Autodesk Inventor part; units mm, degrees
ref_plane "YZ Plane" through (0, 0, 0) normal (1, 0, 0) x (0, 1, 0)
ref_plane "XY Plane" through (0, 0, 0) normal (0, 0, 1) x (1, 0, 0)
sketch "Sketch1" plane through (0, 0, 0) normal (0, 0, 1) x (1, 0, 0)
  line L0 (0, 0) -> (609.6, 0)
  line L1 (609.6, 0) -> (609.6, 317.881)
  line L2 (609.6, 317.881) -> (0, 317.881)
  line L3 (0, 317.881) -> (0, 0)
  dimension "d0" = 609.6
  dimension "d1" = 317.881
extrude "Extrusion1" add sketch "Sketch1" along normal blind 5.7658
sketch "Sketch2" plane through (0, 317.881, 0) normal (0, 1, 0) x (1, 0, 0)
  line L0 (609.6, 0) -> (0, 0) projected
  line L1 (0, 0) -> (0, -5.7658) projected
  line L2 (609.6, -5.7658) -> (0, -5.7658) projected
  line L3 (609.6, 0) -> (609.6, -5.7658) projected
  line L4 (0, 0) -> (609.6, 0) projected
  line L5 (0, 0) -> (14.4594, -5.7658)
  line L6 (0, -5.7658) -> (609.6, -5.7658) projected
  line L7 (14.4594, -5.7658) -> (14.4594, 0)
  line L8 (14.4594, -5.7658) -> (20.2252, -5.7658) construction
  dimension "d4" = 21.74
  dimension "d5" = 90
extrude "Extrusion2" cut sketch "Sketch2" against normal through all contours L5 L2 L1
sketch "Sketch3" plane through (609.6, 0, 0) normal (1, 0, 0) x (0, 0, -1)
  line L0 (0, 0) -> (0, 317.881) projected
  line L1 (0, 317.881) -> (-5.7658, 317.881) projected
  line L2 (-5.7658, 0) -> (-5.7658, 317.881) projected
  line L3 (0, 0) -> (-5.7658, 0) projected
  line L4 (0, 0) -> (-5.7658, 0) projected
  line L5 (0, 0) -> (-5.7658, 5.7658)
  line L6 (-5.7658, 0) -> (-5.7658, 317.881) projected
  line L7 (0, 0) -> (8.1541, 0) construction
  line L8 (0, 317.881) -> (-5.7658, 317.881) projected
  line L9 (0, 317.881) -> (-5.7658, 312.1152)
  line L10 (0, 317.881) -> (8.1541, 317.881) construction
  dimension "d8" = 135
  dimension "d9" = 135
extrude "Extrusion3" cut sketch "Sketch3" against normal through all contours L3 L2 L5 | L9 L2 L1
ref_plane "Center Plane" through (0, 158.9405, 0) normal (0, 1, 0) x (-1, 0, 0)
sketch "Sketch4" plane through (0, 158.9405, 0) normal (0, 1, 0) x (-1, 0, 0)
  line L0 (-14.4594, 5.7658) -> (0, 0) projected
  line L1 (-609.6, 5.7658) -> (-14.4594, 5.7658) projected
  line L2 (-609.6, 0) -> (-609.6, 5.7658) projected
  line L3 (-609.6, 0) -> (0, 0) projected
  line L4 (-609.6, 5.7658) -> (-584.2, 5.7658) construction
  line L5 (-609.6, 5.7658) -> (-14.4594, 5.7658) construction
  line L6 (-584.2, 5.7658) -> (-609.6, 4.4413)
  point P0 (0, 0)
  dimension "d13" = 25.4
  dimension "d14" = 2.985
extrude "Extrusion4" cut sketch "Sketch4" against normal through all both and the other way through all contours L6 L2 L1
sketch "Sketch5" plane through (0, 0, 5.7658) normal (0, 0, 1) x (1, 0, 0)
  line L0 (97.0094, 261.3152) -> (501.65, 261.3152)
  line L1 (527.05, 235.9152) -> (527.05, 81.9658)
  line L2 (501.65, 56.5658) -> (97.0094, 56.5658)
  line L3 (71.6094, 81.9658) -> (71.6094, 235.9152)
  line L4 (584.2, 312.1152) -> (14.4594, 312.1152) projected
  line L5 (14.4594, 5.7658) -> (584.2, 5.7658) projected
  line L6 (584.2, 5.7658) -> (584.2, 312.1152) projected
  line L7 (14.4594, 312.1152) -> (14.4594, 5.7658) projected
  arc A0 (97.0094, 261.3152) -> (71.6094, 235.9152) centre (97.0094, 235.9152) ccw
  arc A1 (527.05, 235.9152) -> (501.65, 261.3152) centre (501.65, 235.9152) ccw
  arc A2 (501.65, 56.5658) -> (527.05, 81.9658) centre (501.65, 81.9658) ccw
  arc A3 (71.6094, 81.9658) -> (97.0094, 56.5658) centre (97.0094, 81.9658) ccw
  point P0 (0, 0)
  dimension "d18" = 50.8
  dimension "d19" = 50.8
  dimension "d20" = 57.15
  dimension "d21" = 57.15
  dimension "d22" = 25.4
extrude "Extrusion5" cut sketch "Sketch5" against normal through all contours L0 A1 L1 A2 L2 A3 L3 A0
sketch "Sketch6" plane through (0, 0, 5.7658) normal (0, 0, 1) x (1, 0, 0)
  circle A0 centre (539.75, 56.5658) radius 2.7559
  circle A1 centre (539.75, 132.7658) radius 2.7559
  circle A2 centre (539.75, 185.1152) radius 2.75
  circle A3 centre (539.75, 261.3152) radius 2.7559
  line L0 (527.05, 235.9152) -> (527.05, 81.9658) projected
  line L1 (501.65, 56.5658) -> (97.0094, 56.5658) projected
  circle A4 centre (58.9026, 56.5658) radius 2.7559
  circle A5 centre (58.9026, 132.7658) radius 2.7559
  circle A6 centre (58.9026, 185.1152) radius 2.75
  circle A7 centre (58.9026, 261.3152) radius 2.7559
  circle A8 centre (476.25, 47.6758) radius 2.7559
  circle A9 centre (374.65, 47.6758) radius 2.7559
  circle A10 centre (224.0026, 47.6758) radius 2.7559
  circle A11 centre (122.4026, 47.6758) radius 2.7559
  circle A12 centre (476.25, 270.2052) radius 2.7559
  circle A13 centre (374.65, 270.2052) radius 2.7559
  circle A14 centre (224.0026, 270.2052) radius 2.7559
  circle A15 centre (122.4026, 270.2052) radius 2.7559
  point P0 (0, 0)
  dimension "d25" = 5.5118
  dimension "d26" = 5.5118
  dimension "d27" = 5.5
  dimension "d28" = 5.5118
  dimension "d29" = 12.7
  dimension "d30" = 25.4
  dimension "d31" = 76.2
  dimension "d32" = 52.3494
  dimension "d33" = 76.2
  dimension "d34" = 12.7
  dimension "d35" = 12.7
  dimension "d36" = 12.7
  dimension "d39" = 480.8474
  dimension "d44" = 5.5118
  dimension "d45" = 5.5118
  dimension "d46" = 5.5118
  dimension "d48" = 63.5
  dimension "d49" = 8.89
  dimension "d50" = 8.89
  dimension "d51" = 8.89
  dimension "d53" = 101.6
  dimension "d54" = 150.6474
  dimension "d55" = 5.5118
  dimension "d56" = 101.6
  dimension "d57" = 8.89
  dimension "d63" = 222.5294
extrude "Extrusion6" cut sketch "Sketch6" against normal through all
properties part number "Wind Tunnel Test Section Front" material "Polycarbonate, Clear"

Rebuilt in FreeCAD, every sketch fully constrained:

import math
import FreeCAD as App
import Part
import Sketcher
from FreeCAD import Vector
Q = App.Units.Quantity


def add_polygon(sketch, points):
    """Adds a closed chain of lines whose ends are joined by coincident constraints."""
    first, n = sketch.GeometryCount, len(points)
    for a, b in zip(points, points[1:] + points[:1]):
        sketch.addGeometry(Part.LineSegment(App.Vector(*a, 0), App.Vector(*b, 0)), False)
    for i in range(n):
        sketch.addConstraint(Sketcher.Constraint("Coincident", first + i, 2, first + (i + 1) % n, 1))

doc = App.newDocument("Part")
body = doc.addObject("PartDesign::Body", "Body")

# Sketch on XY plane
sketch1 = body.newObject("Sketcher::SketchObject", "Sketch")
sketch1.AttachmentSupport = (doc.getObject("XY_Plane"), [""])
sketch1.MapMode = "FlatFace"
add_polygon(sketch1, [(0, 317.881), (0, 0), (609.6, 0), (609.6, 317.881)])  # lines 0-3
sketch1.addConstraint(Sketcher.Constraint("Vertical", 0))
sketch1.addConstraint(Sketcher.Constraint("Horizontal", 1))
sketch1.addConstraint(Sketcher.Constraint("Vertical", 2))
sketch1.addConstraint(Sketcher.Constraint("Horizontal", 3))
sketch1.addConstraint(Sketcher.Constraint("Coincident", 0, 2, -1, 1))
sketch1.addConstraint(Sketcher.Constraint("DistanceX", 1, 1, 1, 2, Q("24 in")))
sketch1.addConstraint(Sketcher.Constraint("DistanceY", 0, 2, 0, 1, Q("12.515 in")))
pad1 = body.newObject("PartDesign::Pad", "Pad")
pad1.Profile = sketch1
pad1.Length = Q("0.227 in")

# Sketch on XZ plane
sketch2 = body.newObject("Sketcher::SketchObject", "Sketch001")
sketch2.AttachmentSupport = (doc.getObject("XZ_Plane"), [""])
sketch2.MapMode = "FlatFace"
sketch2.AttachmentOffset = App.Placement(Vector(0, 0, -12.515 * 25.4), App.Rotation())
add_polygon(sketch2, [(14.4594, 5.7658), (0, 0), (0, 5.7658)])  # lines 0-2
sketch2.addConstraint(Sketcher.Constraint("Vertical", 1))
sketch2.addConstraint(Sketcher.Constraint("Horizontal", 2))
sketch2.addConstraint(Sketcher.Constraint("Coincident", 0, 2, -1, 1))
sketch2.addConstraint(Sketcher.Constraint("DistanceY", 1, 1, 1, 2, Q("0.227 in")))
sketch2.addConstraint(Sketcher.Constraint("Angle", 0, Q("-158.26 deg")))
pocket1 = body.newObject("PartDesign::Pocket", "Pocket")
pocket1.Profile = sketch2
pocket1.Type = "ThroughAll"
pocket1.Reversed = True

# Sketch on YZ plane
sketch3 = body.newObject("Sketcher::SketchObject", "Sketch002")
sketch3.AttachmentSupport = (doc.getObject("YZ_Plane"), [""])
sketch3.MapMode = "FlatFace"
sketch3.AttachmentOffset = App.Placement(Vector(0, 0, 24 * 25.4), App.Rotation())
add_polygon(sketch3, [(0, 5.7658), (0, 0), (5.7658, 5.7658)])  # lines 0-2
add_polygon(sketch3, [(312.1152, 5.7658), (317.881, 0), (317.881, 5.7658)])  # lines 3-5
sketch3.addConstraint(Sketcher.Constraint("Vertical", 0))
sketch3.addConstraint(Sketcher.Constraint("Horizontal", 2))
sketch3.addConstraint(Sketcher.Constraint("Vertical", 4))
sketch3.addConstraint(Sketcher.Constraint("Horizontal", 5))
sketch3.addConstraint(Sketcher.Constraint("Coincident", 0, 2, -1, 1))
sketch3.addConstraint(Sketcher.Constraint("PointOnObject", 3, 2, -1))
sketch3.addConstraint(Sketcher.Constraint("Perpendicular", 1, 3))
sketch3.addConstraint(Sketcher.Constraint("Horizontal", 2, 2, 4, 2))
sketch3.addConstraint(Sketcher.Constraint("Equal", 2, 5))
sketch3.addConstraint(Sketcher.Constraint("DistanceX", 2, 2, 2, 1, Q("0.227 in")))
sketch3.addConstraint(Sketcher.Constraint("DistanceX", -1, 1, 3, 2, Q("12.515 in")))
pocket2 = body.newObject("PartDesign::Pocket", "Pocket001")
pocket2.Profile = sketch3
pocket2.Type = "ThroughAll"

# Sketch on XZ plane
sketch4 = body.newObject("Sketcher::SketchObject", "Sketch003")
sketch4.AttachmentSupport = (doc.getObject("XZ_Plane"), [""])
sketch4.MapMode = "FlatFace"
sketch4.AttachmentOffset = App.Placement(Vector(0, 0, -6.2575 * 25.4), App.Rotation())
add_polygon(sketch4, [(609.6, 4.4413), (584.2, 5.7658), (609.6, 5.7658)])  # lines 0-2
sketch4.addConstraint(Sketcher.Constraint("Horizontal", 1))
sketch4.addConstraint(Sketcher.Constraint("Vertical", 2))
sketch4.addConstraint(Sketcher.Constraint("DistanceX", 1, 1, 1, 2, Q("1 in")))
sketch4.addConstraint(Sketcher.Constraint("DistanceX", -1, 1, 0, 2, Q("23 in")))
sketch4.addConstraint(Sketcher.Constraint("DistanceY", -1, 1, 0, 2, Q("0.227 in")))
sketch4.addConstraint(Sketcher.Constraint("DistanceY", 2, 2, 2, 1, 1.3245))
pocket3 = body.newObject("PartDesign::Pocket", "Pocket002")
pocket3.Profile = sketch4
pocket3.Type = "ThroughAll"
pocket3.Midplane = True

# Sketch on XY plane
sketch5 = body.newObject("Sketcher::SketchObject", "Sketch004")
sketch5.AttachmentSupport = (doc.getObject("XY_Plane"), [""])
sketch5.MapMode = "FlatFace"
sketch5.AttachmentOffset = App.Placement(Vector(0, 0, 0.227 * 25.4), App.Rotation())
sketch5.addGeometry(Part.LineSegment(Vector(501.65, 261.3152, 0), Vector(97.0094, 261.3152, 0)), False)
sketch5.addGeometry(Part.ArcOfCircle(Part.Circle(Vector(97.0094, 235.9152, 0), Vector(0, 0, 1), 25.4), math.radians(90), math.radians(180)), False)
sketch5.addGeometry(Part.LineSegment(Vector(71.6094, 235.9152, 0), Vector(71.6094, 81.9658, 0)), False)
sketch5.addGeometry(Part.ArcOfCircle(Part.Circle(Vector(97.0094, 81.9658, 0), Vector(0, 0, 1), 25.4), math.radians(180), math.radians(270)), False)
sketch5.addGeometry(Part.LineSegment(Vector(97.0094, 56.5658, 0), Vector(501.65, 56.5658, 0)), False)
sketch5.addGeometry(Part.ArcOfCircle(Part.Circle(Vector(501.65, 81.9658, 0), Vector(0, 0, 1), 25.4), math.radians(-90), math.radians(0)), False)
sketch5.addGeometry(Part.LineSegment(Vector(527.05, 81.9658, 0), Vector(527.05, 235.9152, 0)), False)
sketch5.addGeometry(Part.ArcOfCircle(Part.Circle(Vector(501.65, 235.9152, 0), Vector(0, 0, 1), 25.4), math.radians(0), math.radians(90)), False)
sketch5.addConstraint(Sketcher.Constraint("Tangent", 0, 2, 1, 1))
sketch5.addConstraint(Sketcher.Constraint("Tangent", 1, 2, 2, 1))
sketch5.addConstraint(Sketcher.Constraint("Tangent", 2, 2, 3, 1))
sketch5.addConstraint(Sketcher.Constraint("Tangent", 3, 2, 4, 1))
sketch5.addConstraint(Sketcher.Constraint("Tangent", 4, 2, 5, 1))
sketch5.addConstraint(Sketcher.Constraint("Tangent", 5, 2, 6, 1))
sketch5.addConstraint(Sketcher.Constraint("Tangent", 6, 2, 7, 1))
sketch5.addConstraint(Sketcher.Constraint("Tangent", 7, 2, 0, 1))
sketch5.addConstraint(Sketcher.Constraint("Horizontal", 0))
sketch5.addConstraint(Sketcher.Constraint("Vertical", 2))
sketch5.addConstraint(Sketcher.Constraint("Horizontal", 4))
sketch5.addConstraint(Sketcher.Constraint("Vertical", 6))
sketch5.addConstraint(Sketcher.Constraint("Equal", 1, 3))
sketch5.addConstraint(Sketcher.Constraint("Equal", 3, 5))
sketch5.addConstraint(Sketcher.Constraint("Equal", 5, 7))
sketch5.addConstraint(Sketcher.Constraint("Radius", 1, Q("1 in")))
sketch5.addConstraint(Sketcher.Constraint("DistanceY", 2, 2, 2, 1, Q("6.061 in")))
sketch5.addConstraint(Sketcher.Constraint("DistanceX", -1, 1, 5, 3, Q("19.75 in")))
sketch5.addConstraint(Sketcher.Constraint("DistanceY", -1, 1, 1, 3, Q("9.288 in")))
sketch5.addConstraint(Sketcher.Constraint("DistanceX", 0, 2, 0, 1, 404.6406))
pocket4 = body.newObject("PartDesign::Pocket", "Pocket003")
pocket4.Profile = sketch5
pocket4.Type = "ThroughAll"

# Sketch on XY plane
sketch6 = body.newObject("Sketcher::SketchObject", "Sketch005")
sketch6.AttachmentSupport = (doc.getObject("XY_Plane"), [""])
sketch6.MapMode = "FlatFace"
sketch6.AttachmentOffset = App.Placement(Vector(0, 0, 0.227 * 25.4), App.Rotation())
sketch6.addGeometry(Part.Circle(Vector(539.75, 56.5658, 0), Vector(0, 0, 1), 2.7559), False)
sketch6.addGeometry(Part.Circle(Vector(539.75, 132.7658, 0), Vector(0, 0, 1), 2.7559), False)
sketch6.addGeometry(Part.Circle(Vector(539.75, 185.1152, 0), Vector(0, 0, 1), 2.75), False)
sketch6.addGeometry(Part.Circle(Vector(539.75, 261.3152, 0), Vector(0, 0, 1), 2.7559), False)
sketch6.addGeometry(Part.Circle(Vector(58.9026, 56.5658, 0), Vector(0, 0, 1), 2.7559), False)
sketch6.addGeometry(Part.Circle(Vector(58.9026, 132.7658, 0), Vector(0, 0, 1), 2.7559), False)
sketch6.addGeometry(Part.Circle(Vector(58.9026, 185.1152, 0), Vector(0, 0, 1), 2.75), False)
sketch6.addGeometry(Part.Circle(Vector(58.9026, 261.3152, 0), Vector(0, 0, 1), 2.7559), False)
sketch6.addGeometry(Part.Circle(Vector(476.25, 47.6758, 0), Vector(0, 0, 1), 2.7559), False)
sketch6.addGeometry(Part.Circle(Vector(374.65, 47.6758, 0), Vector(0, 0, 1), 2.7559), False)
sketch6.addGeometry(Part.Circle(Vector(224.0026, 47.6758, 0), Vector(0, 0, 1), 2.7559), False)
sketch6.addGeometry(Part.Circle(Vector(122.4026, 47.6758, 0), Vector(0, 0, 1), 2.7559), False)
sketch6.addGeometry(Part.Circle(Vector(476.25, 270.2052, 0), Vector(0, 0, 1), 2.7559), False)
sketch6.addGeometry(Part.Circle(Vector(374.65, 270.2052, 0), Vector(0, 0, 1), 2.7559), False)
sketch6.addGeometry(Part.Circle(Vector(224.0026, 270.2052, 0), Vector(0, 0, 1), 2.7559), False)
sketch6.addGeometry(Part.Circle(Vector(122.4026, 270.2052, 0), Vector(0, 0, 1), 2.7559), False)
sketch6.addConstraint(Sketcher.Constraint("Equal", 0, 1))
sketch6.addConstraint(Sketcher.Constraint("Equal", 1, 3))
sketch6.addConstraint(Sketcher.Constraint("Equal", 3, 4))
sketch6.addConstraint(Sketcher.Constraint("Equal", 4, 5))
sketch6.addConstraint(Sketcher.Constraint("Equal", 2, 6))
sketch6.addConstraint(Sketcher.Constraint("Equal", 5, 7))
sketch6.addConstraint(Sketcher.Constraint("Equal", 7, 8))
sketch6.addConstraint(Sketcher.Constraint("Equal", 8, 9))
sketch6.addConstraint(Sketcher.Constraint("Equal", 9, 10))
sketch6.addConstraint(Sketcher.Constraint("Equal", 10, 11))
sketch6.addConstraint(Sketcher.Constraint("Equal", 11, 12))
sketch6.addConstraint(Sketcher.Constraint("Equal", 12, 13))
sketch6.addConstraint(Sketcher.Constraint("Equal", 13, 14))
sketch6.addConstraint(Sketcher.Constraint("Equal", 14, 15))
sketch6.addConstraint(Sketcher.Constraint("Horizontal", 0, 3, 4, 3))
sketch6.addConstraint(Sketcher.Constraint("Horizontal", 1, 3, 5, 3))
sketch6.addConstraint(Sketcher.Constraint("Horizontal", 2, 3, 6, 3))
sketch6.addConstraint(Sketcher.Constraint("Horizontal", 3, 3, 7, 3))
sketch6.addConstraint(Sketcher.Constraint("Horizontal", 8, 3, 9, 3))
sketch6.addConstraint(Sketcher.Constraint("Horizontal", 9, 3, 10, 3))
sketch6.addConstraint(Sketcher.Constraint("Horizontal", 10, 3, 11, 3))
sketch6.addConstraint(Sketcher.Constraint("Horizontal", 12, 3, 13, 3))
sketch6.addConstraint(Sketcher.Constraint("Horizontal", 13, 3, 14, 3))
sketch6.addConstraint(Sketcher.Constraint("Horizontal", 14, 3, 15, 3))
sketch6.addConstraint(Sketcher.Constraint("Vertical", 0, 3, 1, 3))
sketch6.addConstraint(Sketcher.Constraint("Vertical", 1, 3, 2, 3))
sketch6.addConstraint(Sketcher.Constraint("Vertical", 2, 3, 3, 3))
sketch6.addConstraint(Sketcher.Constraint("Vertical", 4, 3, 5, 3))
sketch6.addConstraint(Sketcher.Constraint("Vertical", 5, 3, 6, 3))
sketch6.addConstraint(Sketcher.Constraint("Vertical", 6, 3, 7, 3))
sketch6.addConstraint(Sketcher.Constraint("Vertical", 8, 3, 12, 3))
sketch6.addConstraint(Sketcher.Constraint("Vertical", 9, 3, 13, 3))
sketch6.addConstraint(Sketcher.Constraint("Vertical", 10, 3, 14, 3))
sketch6.addConstraint(Sketcher.Constraint("Vertical", 11, 3, 15, 3))
sketch6.addConstraint(Sketcher.Constraint("Diameter", 0, Q("0.217 in")))
sketch6.addConstraint(Sketcher.Constraint("DistanceY", 0, 3, 1, 3, Q("3 in")))
sketch6.addConstraint(Sketcher.Constraint("DistanceY", 2, 3, 3, 3, Q("3 in")))
sketch6.addConstraint(Sketcher.Constraint("DistanceX", 9, 3, 8, 3, Q("4 in")))
sketch6.addConstraint(Sketcher.Constraint("DistanceX", 11, 3, 10, 3, Q("4 in")))
sketch6.addConstraint(Sketcher.Constraint("DistanceX", 8, 3, 0, 3, Q("2.5 in")))
sketch6.addConstraint(Sketcher.Constraint("DistanceX", 4, 3, 11, 3, Q("2.5 in")))
sketch6.addConstraint(Sketcher.Constraint("Diameter", 2, 5.5))
sketch6.addConstraint(Sketcher.Constraint("DistanceY", 8, 3, 0, 3, Q("0.35 in")))
sketch6.addConstraint(Sketcher.Constraint("DistanceY", 3, 3, 12, 3, Q("0.35 in")))
sketch6.addConstraint(Sketcher.Constraint("DistanceY", 1, 3, 2, 3, Q("2.061 in")))
sketch6.addConstraint(Sketcher.Constraint("DistanceX", 4, 3, 0, 3, Q("18.931 in")))
sketch6.addConstraint(Sketcher.Constraint("DistanceX", -1, 1, 0, 3, Q("21.25 in")))
sketch6.addConstraint(Sketcher.Constraint("DistanceY", -1, 1, 0, 3, Q("2.227 in")))
pocket5 = body.newObject("PartDesign::Pocket", "Pocket004")
pocket5.Profile = sketch6
pocket5.Type = "ThroughAll"

doc.recompute()
